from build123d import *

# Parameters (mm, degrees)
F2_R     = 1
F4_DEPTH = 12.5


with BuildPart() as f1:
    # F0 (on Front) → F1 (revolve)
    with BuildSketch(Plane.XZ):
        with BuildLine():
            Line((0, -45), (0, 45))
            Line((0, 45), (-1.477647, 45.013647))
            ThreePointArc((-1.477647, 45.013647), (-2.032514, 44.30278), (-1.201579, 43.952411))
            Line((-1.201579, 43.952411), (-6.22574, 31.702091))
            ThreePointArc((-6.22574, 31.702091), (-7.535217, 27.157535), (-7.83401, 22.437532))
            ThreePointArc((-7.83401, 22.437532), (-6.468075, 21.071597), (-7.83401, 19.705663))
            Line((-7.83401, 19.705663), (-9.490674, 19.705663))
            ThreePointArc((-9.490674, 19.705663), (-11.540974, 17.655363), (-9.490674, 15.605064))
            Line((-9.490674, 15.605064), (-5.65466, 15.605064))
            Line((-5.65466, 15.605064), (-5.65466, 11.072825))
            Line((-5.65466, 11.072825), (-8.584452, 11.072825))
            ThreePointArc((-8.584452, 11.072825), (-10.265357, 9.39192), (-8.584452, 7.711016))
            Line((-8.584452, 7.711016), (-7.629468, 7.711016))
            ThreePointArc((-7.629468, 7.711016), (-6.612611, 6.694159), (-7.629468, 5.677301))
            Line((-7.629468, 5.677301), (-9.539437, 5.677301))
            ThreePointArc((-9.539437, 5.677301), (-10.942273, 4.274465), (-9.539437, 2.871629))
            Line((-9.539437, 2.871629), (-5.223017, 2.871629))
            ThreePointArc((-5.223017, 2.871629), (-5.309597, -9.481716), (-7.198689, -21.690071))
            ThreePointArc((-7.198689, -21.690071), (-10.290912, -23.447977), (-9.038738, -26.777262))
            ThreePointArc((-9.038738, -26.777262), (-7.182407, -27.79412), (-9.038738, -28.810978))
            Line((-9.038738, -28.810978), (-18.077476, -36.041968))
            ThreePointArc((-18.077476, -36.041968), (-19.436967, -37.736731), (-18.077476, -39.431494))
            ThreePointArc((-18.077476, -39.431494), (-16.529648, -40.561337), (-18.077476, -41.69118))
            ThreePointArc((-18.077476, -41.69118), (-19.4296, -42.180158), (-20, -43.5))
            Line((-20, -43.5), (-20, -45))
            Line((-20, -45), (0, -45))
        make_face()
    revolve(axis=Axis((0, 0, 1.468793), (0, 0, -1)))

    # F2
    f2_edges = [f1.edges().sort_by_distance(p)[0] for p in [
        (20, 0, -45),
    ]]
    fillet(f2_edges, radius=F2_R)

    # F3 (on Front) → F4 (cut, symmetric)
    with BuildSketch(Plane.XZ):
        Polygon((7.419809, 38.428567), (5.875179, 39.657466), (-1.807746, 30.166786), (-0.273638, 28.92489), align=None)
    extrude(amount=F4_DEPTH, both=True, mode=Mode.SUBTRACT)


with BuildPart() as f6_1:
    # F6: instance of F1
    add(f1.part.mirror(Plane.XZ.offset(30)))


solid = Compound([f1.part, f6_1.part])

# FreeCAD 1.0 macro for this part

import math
import FreeCAD as App
import Part
import Sketcher


def edges_at(feature, points):
    """Names of the edges that pass closest to the given points."""
    edges = feature.Shape.Edges
    near = lambda p: min(range(len(edges)), key=lambda i: edges[i].distToShape(Part.Vertex(*p))[0])
    return sorted({f"Edge{near(p) + 1}" for p in points})

doc = App.newDocument("Part")
body = doc.addObject("PartDesign::Body", "Body")

sketch1 = doc.addObject("Sketcher::SketchObject", "Sketch")
body.addObject(sketch1)
sketch1.AttachmentSupport = (doc.XZ_Plane, [""])
sketch1.MapMode = "FlatFace"
sketch1.addGeometry([
    Part.LineSegment(App.Vector(0, -45, 0), App.Vector(0, 45, 0)),
    Part.LineSegment(App.Vector(0, 45, 0), App.Vector(-1.477647, 45.013647, 0)),
    Part.ArcOfCircle(Part.Circle(App.Vector(-1.482892, 44.445757, 0), App.Vector(0, 0, 1), 0.567915), math.radians(89.470854), math.radians(299.69241)),
    Part.LineSegment(App.Vector(-1.201579, 43.952411, 0), App.Vector(-6.22574, 31.702091, 0)),
    Part.ArcOfCircle(Part.Circle(App.Vector(13.948639, 23.428072, 0), App.Vector(0, 0, 1), 21.805159), math.radians(157.700234), math.radians(182.603663)),
    Part.ArcOfCircle(Part.Circle(App.Vector(-7.834009, 21.071597, 0), App.Vector(0, 0, 1), 1.365935), math.radians(-90.000021), math.radians(90.000021)),
    Part.LineSegment(App.Vector(-7.83401, 19.705663, 0), App.Vector(-9.490674, 19.705663, 0)),
    Part.ArcOfCircle(Part.Circle(App.Vector(-9.490675, 17.655363, 0), App.Vector(0, 0, 1), 2.050299), math.radians(89.999986), math.radians(270.000014)),
    Part.LineSegment(App.Vector(-9.490674, 15.605064, 0), App.Vector(-5.65466, 15.605064, 0)),
    Part.LineSegment(App.Vector(-5.65466, 15.605064, 0), App.Vector(-5.65466, 11.072825, 0)),
    Part.LineSegment(App.Vector(-5.65466, 11.072825, 0), App.Vector(-8.584452, 11.072825, 0)),
    Part.ArcOfCircle(Part.Circle(App.Vector(-8.584452, 9.39192, 0), App.Vector(0, 0, 1), 1.680905), math.radians(89.999983), math.radians(270.000017)),
    Part.LineSegment(App.Vector(-8.584452, 7.711016, 0), App.Vector(-7.629468, 7.711016, 0)),
    Part.ArcOfCircle(Part.Circle(App.Vector(-7.629468, 6.694159, 0), App.Vector(0, 0, 1), 1.016857), math.radians(-89.999972), math.radians(89.999972)),
    Part.LineSegment(App.Vector(-7.629468, 5.677301, 0), App.Vector(-9.539437, 5.677301, 0)),
    Part.ArcOfCircle(Part.Circle(App.Vector(-9.539437, 4.274465, 0), App.Vector(0, 0, 1), 1.402836), math.radians(90), math.radians(270)),
    Part.LineSegment(App.Vector(-9.539437, 2.871629, 0), App.Vector(-5.223017, 2.871629, 0)),
    Part.ArcOfCircle(Part.Circle(App.Vector(-89.431939, -2.715158, 0), App.Vector(0, 0, 1), 84.394045), math.radians(-12.9933), math.radians(3.795689)),
    Part.ArcOfCircle(Part.Circle(App.Vector(-7.715566, -24.379486, 0), App.Vector(0, 0, 1), 2.738634), math.radians(79.121003), math.radians(241.108643)),
    Part.ArcOfCircle(Part.Circle(App.Vector(-8.389079, -27.79412, 0), App.Vector(0, 0, 1), 1.206672), math.radians(-122.574049), math.radians(122.574049)),
    Part.LineSegment(App.Vector(-9.038738, -28.810978, 0), App.Vector(-18.077476, -36.041968, 0)),
    Part.ArcOfCircle(Part.Circle(App.Vector(-17.700862, -37.736731, 0), App.Vector(0, 0, 1), 1.736105), math.radians(102.528798), math.radians(257.471202)),
    Part.ArcOfCircle(Part.Circle(App.Vector(-17.715929, -40.561337, 0), App.Vector(0, 0, 1), 1.186281), math.radians(-107.744562), math.radians(107.744562)),
    Part.ArcOfCircle(Part.Circle(App.Vector(-18.187818, -43.499999, 0), App.Vector(0, 0, 1), 1.812182), math.radians(86.509142), math.radians(180.000028)),
    Part.LineSegment(App.Vector(-20, -43.5, 0), App.Vector(-20, -45, 0)),
    Part.LineSegment(App.Vector(-20, -45, 0), App.Vector(0, -45, 0)),
], False)
sketch1.addConstraint([
    Sketcher.Constraint("Coincident", 0, 2, 1, 1),
    Sketcher.Constraint("Coincident", 1, 2, 2, 1),
    Sketcher.Constraint("Coincident", 2, 2, 3, 1),
    Sketcher.Constraint("Coincident", 3, 2, 4, 1),
    Sketcher.Constraint("Coincident", 4, 2, 5, 2),
    Sketcher.Constraint("Coincident", 5, 1, 6, 1),
    Sketcher.Constraint("Coincident", 6, 2, 7, 1),
    Sketcher.Constraint("Coincident", 7, 2, 8, 1),
    Sketcher.Constraint("Coincident", 8, 2, 9, 1),
    Sketcher.Constraint("Coincident", 9, 2, 10, 1),
    Sketcher.Constraint("Coincident", 10, 2, 11, 1),
    Sketcher.Constraint("Coincident", 11, 2, 12, 1),
    Sketcher.Constraint("Coincident", 12, 2, 13, 2),
    Sketcher.Constraint("Coincident", 13, 1, 14, 1),
    Sketcher.Constraint("Coincident", 14, 2, 15, 1),
    Sketcher.Constraint("Coincident", 15, 2, 16, 1),
    Sketcher.Constraint("Coincident", 16, 2, 17, 2),
    Sketcher.Constraint("Coincident", 17, 1, 18, 1),
    Sketcher.Constraint("Coincident", 18, 2, 19, 2),
    Sketcher.Constraint("Coincident", 19, 1, 20, 1),
    Sketcher.Constraint("Coincident", 20, 2, 21, 1),
    Sketcher.Constraint("Coincident", 21, 2, 22, 2),
    Sketcher.Constraint("Coincident", 22, 1, 23, 1),
    Sketcher.Constraint("Coincident", 23, 2, 24, 1),
    Sketcher.Constraint("Coincident", 24, 2, 25, 1),
    Sketcher.Constraint("Coincident", 25, 2, 0, 1),
    Sketcher.Constraint("Vertical", 0),
    Sketcher.Constraint("Horizontal", 6),
    Sketcher.Constraint("Horizontal", 8),
    Sketcher.Constraint("Vertical", 9),
    Sketcher.Constraint("Horizontal", 10),
    Sketcher.Constraint("Horizontal", 12),
    Sketcher.Constraint("Horizontal", 14),
    Sketcher.Constraint("Horizontal", 16),
    Sketcher.Constraint("Vertical", 24),
    Sketcher.Constraint("Horizontal", 25),
    Sketcher.Constraint("PointOnObject", 0, 2, -2),
    Sketcher.Constraint("DistanceX", 25, 1, 25, 2, 20.0),
    Sketcher.Constraint("DistanceY", 0, 1, 0, 2, 90.0),
    Sketcher.Constraint("DistanceY", 24, 2, 24, 1, 1.5),
    Sketcher.Constraint("DistanceY", -1, 1, 0, 2, 45.0),
    Sketcher.Constraint("DistanceY", 23, 3, -1, 1, 43.499999),
    Sketcher.Constraint("Radius", 7, 2.050299),
    Sketcher.Constraint("Radius", 4, 21.805159),
    Sketcher.Constraint("Radius", 19, 1.206672),
    Sketcher.Constraint("Radius", 22, 1.186281),
    Sketcher.Constraint("Radius", 23, 1.812182),
    Sketcher.Constraint("Radius", 2, 0.567915),
    Sketcher.Constraint("Radius", 5, 1.365935),
    Sketcher.Constraint("Radius", 11, 1.680905),
    Sketcher.Constraint("Radius", 13, 1.016857),
    Sketcher.Constraint("Radius", 15, 1.402836),
    Sketcher.Constraint("Radius", 17, 84.394045),
    Sketcher.Constraint("Radius", 18, 2.738634),
    Sketcher.Constraint("Radius", 21, 1.736105),
    Sketcher.Constraint("DistanceX", 14, 2, 14, 1, 1.909969),
    Sketcher.Constraint("DistanceX", 16, 1, 16, 2, 4.31642),
    Sketcher.Constraint("DistanceY", 9, 2, 9, 1, 4.532239),
    Sketcher.Constraint("DistanceY", -1, 1, 13, 1, 5.677301),
    Sketcher.Constraint("DistanceY", 13, 3, 2, 3, 37.751598),
    Sketcher.Constraint("Distance", 1, 1.47771),
    Sketcher.Constraint("DistanceX", 6, 2, 6, 1, 1.656664),
    Sketcher.Constraint("DistanceX", 8, 1, 8, 2, 3.836014),
    Sketcher.Constraint("DistanceX", 10, 2, 10, 1, 2.929792),
    Sketcher.Constraint("DistanceX", 12, 1, 12, 2, 0.954984),
    Sketcher.Constraint("DistanceX", 2, 3, -1, 1, 1.482892),
    Sketcher.Constraint("DistanceX", -1, 1, 4, 3, 13.948639),
    Sketcher.Constraint("DistanceY", -1, 1, 4, 3, 23.428072),
    Sketcher.Constraint("DistanceX", 5, 3, -1, 1, 7.834009),
    Sketcher.Constraint("DistanceX", 13, 3, -1, 1, 7.629468),
    Sketcher.Constraint("DistanceX", 17, 3, -1, 1, 89.431939),
    Sketcher.Constraint("DistanceX", 19, 3, -1, 1, 8.389079),
    Sketcher.Constraint("DistanceY", 19, 3, -1, 1, 27.79412),
    Sketcher.Constraint("DistanceY", 21, 3, -1, 1, 37.736731),
    Sketcher.Constraint("DistanceX", 22, 3, -1, 1, 17.715929),
    Sketcher.Constraint("DistanceX", 2, 2, -1, 1, 1.201579),
    Sketcher.Constraint("DistanceX", 3, 2, -1, 1, 6.22574),
    Sketcher.Constraint("DistanceX", 5, 1, -1, 1, 7.83401),
    Sketcher.Constraint("DistanceX", 8, 2, -1, 1, 5.65466),
    Sketcher.Constraint("DistanceX", 17, 1, -1, 1, 7.198689),
    Sketcher.Constraint("DistanceY", 17, 1, -1, 1, 21.690071),
    Sketcher.Constraint("DistanceY", 18, 2, -1, 1, 26.777262),
    Sketcher.Constraint("DistanceY", 22, 1, -1, 1, 41.69118),
    Sketcher.Constraint("DistanceX", 11, 3, 4, 3, 22.533091),
    Sketcher.Constraint("DistanceX", 15, 3, 13, 3, 1.909968),
    Sketcher.Constraint("DistanceX", 7, 3, 18, 3, 1.775108),
    Sketcher.Constraint("DistanceX", 21, 3, 11, 3, 9.11641),
    Sketcher.Constraint("DistanceX", 12, 2, 9, 2, 1.974808),
    Sketcher.Constraint("DistanceX", 15, 3, 13, 1, 1.909969),
    Sketcher.Constraint("DistanceX", 19, 1, 19, 3, 0.649659),
    Sketcher.Constraint("DistanceY", 22, 3, 20, 2, 4.519369),
])
revolution = doc.addObject("PartDesign::Revolution", "Revolution")
body.addObject(revolution)
revolution.Profile = sketch1
revolution.ReferenceAxis = (sketch1, ["V_Axis"])
revolution.Angle = 360
doc.recompute()

fillet = doc.addObject("PartDesign::Fillet", "Fillet")
body.addObject(fillet)
fillet.Base = (revolution, edges_at(revolution, [(20, 0, -45)]))
fillet.Radius = 1

sketch2 = doc.addObject("Sketcher::SketchObject", "Sketch001")
body.addObject(sketch2)
sketch2.AttachmentSupport = (doc.XZ_Plane, [""])
sketch2.MapMode = "FlatFace"
sketch2.addGeometry([
    Part.LineSegment(App.Vector(7.419809, 38.428567, 0), App.Vector(5.875179, 39.657466, 0)),
    Part.LineSegment(App.Vector(5.875179, 39.657466, 0), App.Vector(-1.807746, 30.166786, 0)),
    Part.LineSegment(App.Vector(-1.807746, 30.166786, 0), App.Vector(-0.273638, 28.92489, 0)),
    Part.LineSegment(App.Vector(-0.273638, 28.92489, 0), App.Vector(7.419809, 38.428567, 0)),
], False)
sketch2.addConstraint([
    Sketcher.Constraint("Coincident", 0, 2, 1, 1),
    Sketcher.Constraint("Coincident", 1, 2, 2, 1),
    Sketcher.Constraint("Coincident", 2, 2, 3, 1),
    Sketcher.Constraint("Coincident", 3, 2, 0, 1),
    Sketcher.Constraint("Perpendicular", 1, 2),
    Sketcher.Constraint("Perpendicular", 2, 3),
    Sketcher.Constraint("DistanceY", 3, 2, 0, 2, 1.228899),
    Sketcher.Constraint("DistanceX", -1, 1, 0, 2, 5.875179),
    Sketcher.Constraint("DistanceY", -1, 1, 2, 2, 28.92489),
    Sketcher.Constraint("DistanceX", -1, 1, 3, 2, 7.419809),
    Sketcher.Constraint("DistanceY", 1, 2, 0, 2, 9.49068),
    Sketcher.Constraint("Distance", 1, 12.210665),
])
pocket1 = doc.addObject("PartDesign::Pocket", "Pocket")
body.addObject(pocket1)
pocket1.Profile = sketch2
pocket1.Length = 25
pocket1.Midplane = True
body2 = doc.addObject("PartDesign::Body", "Body001")
doc.recompute()

mirroring = doc.addObject("Part::Mirroring", "Mirroring")
mirroring.Source = body
mirroring.Base = App.Vector(0, -30, 0)
mirroring.Normal = App.Vector(0, -1, 0)
body2.BaseFeature = mirroring
doc.recompute()
mirroring.Visibility = False

doc.recompute()
